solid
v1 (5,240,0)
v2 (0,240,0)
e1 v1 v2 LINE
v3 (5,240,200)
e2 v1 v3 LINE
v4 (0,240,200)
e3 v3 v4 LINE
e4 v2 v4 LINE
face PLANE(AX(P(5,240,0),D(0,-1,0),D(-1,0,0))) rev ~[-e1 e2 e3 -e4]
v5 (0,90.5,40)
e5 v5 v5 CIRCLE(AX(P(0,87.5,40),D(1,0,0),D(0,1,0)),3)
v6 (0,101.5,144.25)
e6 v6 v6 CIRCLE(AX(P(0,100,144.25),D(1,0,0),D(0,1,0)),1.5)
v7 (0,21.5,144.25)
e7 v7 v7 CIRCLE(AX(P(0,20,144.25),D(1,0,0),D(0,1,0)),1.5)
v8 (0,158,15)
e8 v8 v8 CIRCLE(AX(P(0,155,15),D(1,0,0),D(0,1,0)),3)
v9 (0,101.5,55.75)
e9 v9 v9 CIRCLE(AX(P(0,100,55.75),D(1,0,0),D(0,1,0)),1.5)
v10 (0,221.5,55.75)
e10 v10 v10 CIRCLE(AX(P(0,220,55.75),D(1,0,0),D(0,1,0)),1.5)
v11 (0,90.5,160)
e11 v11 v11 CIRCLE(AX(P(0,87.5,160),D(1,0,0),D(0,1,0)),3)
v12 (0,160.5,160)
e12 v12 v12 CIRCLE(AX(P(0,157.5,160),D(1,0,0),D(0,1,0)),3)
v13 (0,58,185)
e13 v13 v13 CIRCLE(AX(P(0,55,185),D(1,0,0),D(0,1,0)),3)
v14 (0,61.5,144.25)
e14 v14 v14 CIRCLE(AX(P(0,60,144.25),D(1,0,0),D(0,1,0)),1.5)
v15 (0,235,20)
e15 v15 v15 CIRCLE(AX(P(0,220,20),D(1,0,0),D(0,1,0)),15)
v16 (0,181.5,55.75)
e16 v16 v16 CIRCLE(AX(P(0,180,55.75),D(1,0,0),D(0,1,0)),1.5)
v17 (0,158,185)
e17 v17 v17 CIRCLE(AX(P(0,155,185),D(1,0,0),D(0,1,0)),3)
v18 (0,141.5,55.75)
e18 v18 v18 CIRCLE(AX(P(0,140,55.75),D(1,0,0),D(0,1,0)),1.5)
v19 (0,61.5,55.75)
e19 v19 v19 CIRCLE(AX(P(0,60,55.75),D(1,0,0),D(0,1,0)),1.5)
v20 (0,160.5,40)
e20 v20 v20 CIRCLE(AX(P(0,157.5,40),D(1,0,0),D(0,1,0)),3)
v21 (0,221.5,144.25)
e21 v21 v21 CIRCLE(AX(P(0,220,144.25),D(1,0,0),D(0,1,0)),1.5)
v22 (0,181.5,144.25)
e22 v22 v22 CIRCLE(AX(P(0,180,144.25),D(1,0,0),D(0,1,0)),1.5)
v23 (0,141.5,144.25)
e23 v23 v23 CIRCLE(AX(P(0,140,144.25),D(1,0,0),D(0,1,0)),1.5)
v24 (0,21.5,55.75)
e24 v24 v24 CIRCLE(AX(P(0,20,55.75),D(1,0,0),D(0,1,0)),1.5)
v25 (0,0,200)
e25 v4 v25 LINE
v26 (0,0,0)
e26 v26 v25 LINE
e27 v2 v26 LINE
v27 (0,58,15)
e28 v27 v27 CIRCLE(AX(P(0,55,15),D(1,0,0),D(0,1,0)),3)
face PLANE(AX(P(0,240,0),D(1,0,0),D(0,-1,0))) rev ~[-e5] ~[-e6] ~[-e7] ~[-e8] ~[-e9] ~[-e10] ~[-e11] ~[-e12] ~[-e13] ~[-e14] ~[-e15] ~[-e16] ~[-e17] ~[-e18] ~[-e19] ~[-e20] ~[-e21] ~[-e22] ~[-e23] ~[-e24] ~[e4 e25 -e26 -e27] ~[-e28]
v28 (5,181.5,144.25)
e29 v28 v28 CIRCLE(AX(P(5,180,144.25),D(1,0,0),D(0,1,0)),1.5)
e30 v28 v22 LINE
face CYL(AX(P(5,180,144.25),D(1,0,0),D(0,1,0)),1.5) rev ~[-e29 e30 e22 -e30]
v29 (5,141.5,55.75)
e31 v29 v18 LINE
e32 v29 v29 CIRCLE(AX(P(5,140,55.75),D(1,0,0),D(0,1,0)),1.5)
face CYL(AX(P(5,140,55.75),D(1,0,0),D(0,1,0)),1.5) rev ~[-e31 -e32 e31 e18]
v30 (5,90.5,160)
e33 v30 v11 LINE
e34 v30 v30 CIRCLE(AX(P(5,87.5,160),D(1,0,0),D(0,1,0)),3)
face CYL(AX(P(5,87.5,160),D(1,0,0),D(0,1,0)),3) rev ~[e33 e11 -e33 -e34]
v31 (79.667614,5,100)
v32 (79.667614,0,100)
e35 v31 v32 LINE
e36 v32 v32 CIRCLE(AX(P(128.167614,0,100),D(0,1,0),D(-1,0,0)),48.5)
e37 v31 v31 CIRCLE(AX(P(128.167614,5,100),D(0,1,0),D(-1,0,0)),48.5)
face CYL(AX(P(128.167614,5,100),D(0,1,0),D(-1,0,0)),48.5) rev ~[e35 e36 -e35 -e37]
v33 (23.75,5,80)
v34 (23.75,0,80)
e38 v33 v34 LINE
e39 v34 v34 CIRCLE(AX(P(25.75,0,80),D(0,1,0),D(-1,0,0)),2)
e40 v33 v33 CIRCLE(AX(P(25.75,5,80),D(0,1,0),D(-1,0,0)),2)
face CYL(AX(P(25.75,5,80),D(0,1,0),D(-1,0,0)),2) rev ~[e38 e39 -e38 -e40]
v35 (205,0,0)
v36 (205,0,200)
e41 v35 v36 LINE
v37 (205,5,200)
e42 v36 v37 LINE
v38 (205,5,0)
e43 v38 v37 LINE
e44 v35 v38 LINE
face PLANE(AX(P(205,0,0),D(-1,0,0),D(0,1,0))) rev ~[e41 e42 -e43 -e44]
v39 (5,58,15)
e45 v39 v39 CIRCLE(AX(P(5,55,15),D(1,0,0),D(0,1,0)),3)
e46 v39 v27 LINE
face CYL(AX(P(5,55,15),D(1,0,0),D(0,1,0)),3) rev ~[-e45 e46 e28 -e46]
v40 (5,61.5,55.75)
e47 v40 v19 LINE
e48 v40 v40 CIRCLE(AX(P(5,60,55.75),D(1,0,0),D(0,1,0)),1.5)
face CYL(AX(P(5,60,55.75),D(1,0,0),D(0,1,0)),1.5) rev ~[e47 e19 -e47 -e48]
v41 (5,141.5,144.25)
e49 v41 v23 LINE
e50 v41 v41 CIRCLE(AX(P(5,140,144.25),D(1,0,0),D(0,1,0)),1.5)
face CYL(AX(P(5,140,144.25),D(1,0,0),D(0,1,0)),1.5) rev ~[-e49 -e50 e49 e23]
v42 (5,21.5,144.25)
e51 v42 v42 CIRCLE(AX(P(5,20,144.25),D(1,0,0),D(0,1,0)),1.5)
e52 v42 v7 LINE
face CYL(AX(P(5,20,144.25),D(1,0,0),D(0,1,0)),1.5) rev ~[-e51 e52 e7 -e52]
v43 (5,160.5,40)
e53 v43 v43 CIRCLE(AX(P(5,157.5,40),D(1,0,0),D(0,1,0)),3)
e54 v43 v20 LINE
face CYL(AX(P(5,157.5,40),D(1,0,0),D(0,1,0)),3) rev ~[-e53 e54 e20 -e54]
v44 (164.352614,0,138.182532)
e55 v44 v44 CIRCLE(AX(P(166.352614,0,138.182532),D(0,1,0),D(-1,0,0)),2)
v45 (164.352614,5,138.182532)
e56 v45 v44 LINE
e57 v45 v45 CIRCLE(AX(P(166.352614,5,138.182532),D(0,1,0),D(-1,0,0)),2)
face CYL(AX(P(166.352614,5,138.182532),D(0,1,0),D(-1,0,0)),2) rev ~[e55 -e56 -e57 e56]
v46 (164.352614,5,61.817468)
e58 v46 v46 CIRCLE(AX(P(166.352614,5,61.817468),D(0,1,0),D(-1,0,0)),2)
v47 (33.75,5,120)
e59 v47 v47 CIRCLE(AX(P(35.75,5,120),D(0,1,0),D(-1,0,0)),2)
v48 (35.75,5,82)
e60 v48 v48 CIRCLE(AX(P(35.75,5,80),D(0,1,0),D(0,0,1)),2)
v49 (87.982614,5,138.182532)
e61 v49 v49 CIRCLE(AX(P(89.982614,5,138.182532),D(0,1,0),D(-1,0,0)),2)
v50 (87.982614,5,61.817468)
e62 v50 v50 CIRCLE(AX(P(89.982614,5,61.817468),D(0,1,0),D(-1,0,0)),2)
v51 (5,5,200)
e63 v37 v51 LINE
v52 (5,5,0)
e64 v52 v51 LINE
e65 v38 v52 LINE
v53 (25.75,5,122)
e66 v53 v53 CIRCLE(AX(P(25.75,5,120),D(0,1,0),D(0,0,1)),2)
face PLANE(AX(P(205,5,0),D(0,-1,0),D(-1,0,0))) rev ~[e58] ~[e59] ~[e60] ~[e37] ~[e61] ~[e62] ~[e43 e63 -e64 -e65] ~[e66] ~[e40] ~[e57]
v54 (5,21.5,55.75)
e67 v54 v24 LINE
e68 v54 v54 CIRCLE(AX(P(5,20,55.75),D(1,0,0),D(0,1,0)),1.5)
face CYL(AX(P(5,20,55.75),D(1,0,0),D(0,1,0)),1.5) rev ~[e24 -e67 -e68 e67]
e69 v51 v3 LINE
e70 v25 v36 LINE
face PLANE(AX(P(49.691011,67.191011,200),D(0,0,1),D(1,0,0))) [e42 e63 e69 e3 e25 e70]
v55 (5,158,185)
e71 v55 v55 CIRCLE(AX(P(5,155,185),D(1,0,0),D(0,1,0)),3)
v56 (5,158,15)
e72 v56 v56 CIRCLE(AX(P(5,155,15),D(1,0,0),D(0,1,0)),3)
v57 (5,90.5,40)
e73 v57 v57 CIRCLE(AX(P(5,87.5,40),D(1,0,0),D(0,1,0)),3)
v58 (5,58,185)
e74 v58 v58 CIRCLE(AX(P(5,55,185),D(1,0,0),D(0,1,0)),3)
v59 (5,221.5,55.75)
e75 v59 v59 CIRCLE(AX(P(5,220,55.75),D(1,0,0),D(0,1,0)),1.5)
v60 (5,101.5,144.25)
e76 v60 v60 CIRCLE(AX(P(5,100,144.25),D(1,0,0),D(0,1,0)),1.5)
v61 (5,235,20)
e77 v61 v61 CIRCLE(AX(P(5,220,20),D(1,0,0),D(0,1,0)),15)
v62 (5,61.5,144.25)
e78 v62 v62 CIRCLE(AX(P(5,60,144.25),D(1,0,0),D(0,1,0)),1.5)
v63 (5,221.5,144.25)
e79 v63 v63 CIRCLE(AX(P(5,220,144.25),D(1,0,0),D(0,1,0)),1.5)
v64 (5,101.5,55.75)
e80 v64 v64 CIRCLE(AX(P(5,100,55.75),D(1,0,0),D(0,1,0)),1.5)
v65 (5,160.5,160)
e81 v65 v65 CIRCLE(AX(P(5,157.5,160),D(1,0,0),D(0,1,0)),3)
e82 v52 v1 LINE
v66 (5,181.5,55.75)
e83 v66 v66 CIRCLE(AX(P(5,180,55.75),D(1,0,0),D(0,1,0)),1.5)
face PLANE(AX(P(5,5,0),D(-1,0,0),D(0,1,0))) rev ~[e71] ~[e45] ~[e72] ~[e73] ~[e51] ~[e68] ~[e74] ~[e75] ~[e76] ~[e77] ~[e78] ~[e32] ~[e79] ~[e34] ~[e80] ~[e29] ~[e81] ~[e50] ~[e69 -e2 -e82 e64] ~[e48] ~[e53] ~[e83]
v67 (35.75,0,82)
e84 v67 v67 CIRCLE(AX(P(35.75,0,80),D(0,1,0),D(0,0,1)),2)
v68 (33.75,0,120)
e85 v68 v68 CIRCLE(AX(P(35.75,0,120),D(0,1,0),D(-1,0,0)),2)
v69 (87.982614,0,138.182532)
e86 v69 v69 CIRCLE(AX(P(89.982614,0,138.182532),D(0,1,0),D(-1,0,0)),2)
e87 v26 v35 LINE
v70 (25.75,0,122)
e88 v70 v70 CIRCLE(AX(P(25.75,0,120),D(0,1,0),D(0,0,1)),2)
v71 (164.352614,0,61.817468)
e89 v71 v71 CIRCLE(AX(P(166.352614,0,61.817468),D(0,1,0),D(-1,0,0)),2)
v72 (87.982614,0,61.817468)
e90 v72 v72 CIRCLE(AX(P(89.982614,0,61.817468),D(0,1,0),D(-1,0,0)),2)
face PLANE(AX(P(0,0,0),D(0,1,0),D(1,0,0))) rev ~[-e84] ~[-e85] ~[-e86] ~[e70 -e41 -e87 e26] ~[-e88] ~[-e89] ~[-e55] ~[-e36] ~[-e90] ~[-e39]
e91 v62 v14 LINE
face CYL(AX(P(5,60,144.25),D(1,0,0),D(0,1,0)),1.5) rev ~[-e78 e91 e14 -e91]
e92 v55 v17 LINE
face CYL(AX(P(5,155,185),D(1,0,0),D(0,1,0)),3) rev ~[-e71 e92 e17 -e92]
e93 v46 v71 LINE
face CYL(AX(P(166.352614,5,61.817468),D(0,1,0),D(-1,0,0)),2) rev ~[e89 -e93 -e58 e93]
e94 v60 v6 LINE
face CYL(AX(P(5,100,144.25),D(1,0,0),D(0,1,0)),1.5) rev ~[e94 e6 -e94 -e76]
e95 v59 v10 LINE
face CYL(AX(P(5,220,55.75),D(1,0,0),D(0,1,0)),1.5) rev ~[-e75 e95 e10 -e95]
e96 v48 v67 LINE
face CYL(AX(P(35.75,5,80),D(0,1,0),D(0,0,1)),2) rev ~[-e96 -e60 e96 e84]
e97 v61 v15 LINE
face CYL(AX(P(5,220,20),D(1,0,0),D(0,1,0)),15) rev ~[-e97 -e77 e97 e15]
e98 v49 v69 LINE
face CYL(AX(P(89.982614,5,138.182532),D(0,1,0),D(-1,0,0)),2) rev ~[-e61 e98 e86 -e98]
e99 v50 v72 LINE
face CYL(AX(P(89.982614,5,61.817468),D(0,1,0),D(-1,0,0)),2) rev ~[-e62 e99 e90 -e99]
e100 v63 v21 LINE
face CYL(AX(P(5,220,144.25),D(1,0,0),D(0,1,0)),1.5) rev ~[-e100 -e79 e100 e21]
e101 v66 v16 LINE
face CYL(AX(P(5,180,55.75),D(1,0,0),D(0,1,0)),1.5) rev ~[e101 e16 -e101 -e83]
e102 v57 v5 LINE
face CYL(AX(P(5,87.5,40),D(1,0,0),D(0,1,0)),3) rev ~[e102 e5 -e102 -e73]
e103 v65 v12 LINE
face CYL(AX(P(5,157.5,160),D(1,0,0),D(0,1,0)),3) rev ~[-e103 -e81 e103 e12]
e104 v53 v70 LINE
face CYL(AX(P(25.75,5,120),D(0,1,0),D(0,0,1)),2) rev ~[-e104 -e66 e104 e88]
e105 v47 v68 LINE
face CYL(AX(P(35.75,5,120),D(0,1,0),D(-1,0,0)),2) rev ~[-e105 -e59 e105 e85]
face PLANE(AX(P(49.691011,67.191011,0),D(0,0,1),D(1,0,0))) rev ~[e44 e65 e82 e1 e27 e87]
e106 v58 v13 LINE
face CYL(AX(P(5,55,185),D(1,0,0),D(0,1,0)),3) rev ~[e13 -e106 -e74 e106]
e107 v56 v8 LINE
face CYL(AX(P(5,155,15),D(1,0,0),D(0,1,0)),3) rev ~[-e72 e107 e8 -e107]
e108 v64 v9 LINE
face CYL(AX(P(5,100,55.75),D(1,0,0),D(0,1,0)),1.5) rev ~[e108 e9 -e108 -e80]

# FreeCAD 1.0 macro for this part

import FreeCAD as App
import Part
import Sketcher
from FreeCAD import Vector
Q = App.Units.Quantity


def add_polygon(sketch, points):
    """Adds a closed chain of lines whose ends are joined by coincident constraints."""
    first, n = sketch.GeometryCount, len(points)
    for a, b in zip(points, points[1:] + points[:1]):
        sketch.addGeometry(Part.LineSegment(App.Vector(*a, 0), App.Vector(*b, 0)), False)
    for i in range(n):
        sketch.addConstraint(Sketcher.Constraint("Coincident", first + i, 2, first + (i + 1) % n, 1))

doc = App.newDocument("Part")
body = doc.addObject("PartDesign::Body", "Body")

sketch1 = body.newObject("Sketcher::SketchObject", "Sketch")
sketch1.AttachmentSupport = (doc.getObject("XY_Plane"), [""])
sketch1.MapMode = "FlatFace"
add_polygon(sketch1, [(0, 240), (0, 0), (205, 0), (205, 5), (5, 5), (5, 240)])
sketch1.addConstraint([
    Sketcher.Constraint("Vertical", 0),
    Sketcher.Constraint("Horizontal", 1),
    Sketcher.Constraint("Vertical", 2),
    Sketcher.Constraint("Horizontal", 3),
    Sketcher.Constraint("Vertical", 4),
    Sketcher.Constraint("Horizontal", 5),
    Sketcher.Constraint("Coincident", 0, 2, -1, 1),
    Sketcher.Constraint("Equal", 5, 2),
    Sketcher.Constraint("DistanceX", 1, 1, 1, 2, Q("205 mm")),
    Sketcher.Constraint("DistanceX", 3, 2, 3, 1, Q("200 mm")),
    Sketcher.Constraint("DistanceY", 0, 2, 0, 1, Q("240 mm")),
])
pad1 = body.newObject("PartDesign::Pad", "Pad")
pad1.Profile = sketch1
pad1.Length = 200

sketch2 = body.newObject("Sketcher::SketchObject", "Sketch001")
sketch2.AttachmentSupport = (doc.getObject("XZ_Plane"), [""])
sketch2.MapMode = "FlatFace"
sketch2.AttachmentOffset = App.Placement(Vector(0, 0, -5), App.Rotation())
sketch2.addGeometry(Part.Circle(Vector(128.167614, 100, 0), Vector(0, 0, 1), 48.5), False)
sketch2.addConstraint([
    Sketcher.Constraint("Diameter", 0, Q("97 mm")),
    Sketcher.Constraint("DistanceY", -1, 1, 0, 3, Q("100 mm")),
    Sketcher.Constraint("DistanceX", -1, 1, 0, 3, Q("128.167614 mm")),
])
pocket1 = body.newObject("PartDesign::Pocket", "Pocket")
pocket1.Profile = sketch2
pocket1.Type = "UpToFirst"
pocket1.Reversed = True

sketch3 = body.newObject("Sketcher::SketchObject", "Sketch002")
sketch3.AttachmentSupport = (doc.getObject("XZ_Plane"), [""])
sketch3.MapMode = "FlatFace"
sketch3.AttachmentOffset = App.Placement(Vector(0, 0, -5), App.Rotation())
sketch3.addGeometry(Part.Circle(Vector(89.982614, 61.817468, 0), Vector(0, 0, 1), 2), False)
sketch3.addConstraint([
    Sketcher.Constraint("Diameter", 0, Q("4 mm")),
    Sketcher.Constraint("DistanceX", -1, 1, 0, 3, Q("89.982614 mm")),
    Sketcher.Constraint("DistanceY", -1, 1, 0, 3, Q("61.817468 mm")),
])
pocket2 = body.newObject("PartDesign::Pocket", "Pocket001")
pocket2.Profile = sketch3
pocket2.Type = "UpToFirst"
pocket2.Reversed = True

sketch4 = body.newObject("Sketcher::SketchObject", "Sketch003")
sketch4.AttachmentSupport = (doc.getObject("XZ_Plane"), [""])
sketch4.MapMode = "FlatFace"
sketch4.AttachmentOffset = App.Placement(Vector(0, 0, -5), App.Rotation())
sketch4.addGeometry(Part.Circle(Vector(166.352614, 61.817468, 0), Vector(0, 0, 1), 2), False)
sketch4.addConstraint([
    Sketcher.Constraint("Diameter", 0, Q("4 mm")),
    Sketcher.Constraint("DistanceX", -1, 1, 0, 3, Q("166.352614 mm")),
    Sketcher.Constraint("DistanceY", -1, 1, 0, 3, Q("61.817468 mm")),
])
pocket3 = body.newObject("PartDesign::Pocket", "Pocket002")
pocket3.Profile = sketch4
pocket3.Type = "UpToFirst"
pocket3.Reversed = True

sketch5 = body.newObject("Sketcher::SketchObject", "Sketch004")
sketch5.AttachmentSupport = (doc.getObject("XZ_Plane"), [""])
sketch5.MapMode = "FlatFace"
sketch5.AttachmentOffset = App.Placement(Vector(0, 0, -5), App.Rotation())
sketch5.addGeometry(Part.Circle(Vector(89.982614, 138.182532, 0), Vector(0, 0, 1), 2), False)
sketch5.addConstraint([
    Sketcher.Constraint("Diameter", 0, Q("4 mm")),
    Sketcher.Constraint("DistanceX", -1, 1, 0, 3, Q("89.982614 mm")),
    Sketcher.Constraint("DistanceY", -1, 1, 0, 3, Q("138.182532 mm")),
])
pocket4 = body.newObject("PartDesign::Pocket", "Pocket003")
pocket4.Profile = sketch5
pocket4.Type = "UpToFirst"
pocket4.Reversed = True

sketch6 = body.newObject("Sketcher::SketchObject", "Sketch005")
sketch6.AttachmentSupport = (doc.getObject("XZ_Plane"), [""])
sketch6.MapMode = "FlatFace"
sketch6.AttachmentOffset = App.Placement(Vector(0, 0, -5), App.Rotation())
sketch6.addGeometry(Part.Circle(Vector(166.352614, 138.182532, 0), Vector(0, 0, 1), 2), False)
sketch6.addConstraint([
    Sketcher.Constraint("Diameter", 0, Q("4 mm")),
    Sketcher.Constraint("DistanceX", -1, 1, 0, 3, Q("166.352614 mm")),
    Sketcher.Constraint("DistanceY", -1, 1, 0, 3, Q("138.182532 mm")),
])
pocket5 = body.newObject("PartDesign::Pocket", "Pocket004")
pocket5.Profile = sketch6
pocket5.Type = "UpToFirst"
pocket5.Reversed = True

sketch7 = body.newObject("Sketcher::SketchObject", "Sketch006")
sketch7.AttachmentSupport = (doc.getObject("XZ_Plane"), [""])
sketch7.MapMode = "FlatFace"
sketch7.AttachmentOffset = App.Placement(Vector(0, 0, -5), App.Rotation())
sketch7.addGeometry(Part.Circle(Vector(25.75, 80, 0), Vector(0, 0, 1), 2), False)
sketch7.addConstraint([
    Sketcher.Constraint("Diameter", 0, Q("4 mm")),
    Sketcher.Constraint("DistanceY", -1, 1, 0, 3, Q("80 mm")),
    Sketcher.Constraint("DistanceX", -1, 1, 0, 3, Q("25.75 mm")),
])
pocket6 = body.newObject("PartDesign::Pocket", "Pocket005")
pocket6.Profile = sketch7
pocket6.Type = "UpToFirst"
pocket6.Reversed = True

sketch8 = body.newObject("Sketcher::SketchObject", "Sketch007")
sketch8.AttachmentSupport = (doc.getObject("XZ_Plane"), [""])
sketch8.MapMode = "FlatFace"
sketch8.AttachmentOffset = App.Placement(Vector(0, 0, -5), App.Rotation())
sketch8.addGeometry(Part.Circle(Vector(25.75, 120, 0), Vector(0, 0, 1), 2), False)
sketch8.addConstraint([
    Sketcher.Constraint("Diameter", 0, Q("4 mm")),
    Sketcher.Constraint("DistanceY", -1, 1, 0, 3, Q("120 mm")),
    Sketcher.Constraint("DistanceX", -1, 1, 0, 3, Q("25.75 mm")),
])
pocket7 = body.newObject("PartDesign::Pocket", "Pocket006")
pocket7.Profile = sketch8
pocket7.Type = "UpToFirst"
pocket7.Reversed = True

sketch9 = body.newObject("Sketcher::SketchObject", "Sketch008")
sketch9.AttachmentSupport = (doc.getObject("XZ_Plane"), [""])
sketch9.MapMode = "FlatFace"
sketch9.AttachmentOffset = App.Placement(Vector(0, 0, -5), App.Rotation())
sketch9.addGeometry(Part.Circle(Vector(35.75, 120, 0), Vector(0, 0, 1), 2), False)
sketch9.addConstraint([
    Sketcher.Constraint("Diameter", 0, Q("4 mm")),
    Sketcher.Constraint("DistanceY", -1, 1, 0, 3, Q("120 mm")),
    Sketcher.Constraint("DistanceX", -1, 1, 0, 3, Q("35.75 mm")),
])
pocket8 = body.newObject("PartDesign::Pocket", "Pocket007")
pocket8.Profile = sketch9
pocket8.Type = "UpToFirst"
pocket8.Reversed = True

sketch10 = body.newObject("Sketcher::SketchObject", "Sketch009")
sketch10.AttachmentSupport = (doc.getObject("XZ_Plane"), [""])
sketch10.MapMode = "FlatFace"
sketch10.AttachmentOffset = App.Placement(Vector(0, 0, -5), App.Rotation())
sketch10.addGeometry(Part.Circle(Vector(35.75, 80, 0), Vector(0, 0, 1), 2), False)
sketch10.addConstraint([
    Sketcher.Constraint("Diameter", 0, Q("4 mm")),
    Sketcher.Constraint("DistanceY", -1, 1, 0, 3, Q("80 mm")),
    Sketcher.Constraint("DistanceX", -1, 1, 0, 3, Q("35.75 mm")),
])
pocket9 = body.newObject("PartDesign::Pocket", "Pocket008")
pocket9.Profile = sketch10
pocket9.Type = "UpToFirst"
pocket9.Reversed = True

sketch11 = body.newObject("Sketcher::SketchObject", "Sketch010")
sketch11.AttachmentSupport = (doc.getObject("YZ_Plane"), [""])
sketch11.MapMode = "FlatFace"
sketch11.AttachmentOffset = App.Placement(Vector(0, 0, 5), App.Rotation())
sketch11.addGeometry(Part.Circle(Vector(220, 20, 0), Vector(0, 0, 1), 15), False)
sketch11.addConstraint([
    Sketcher.Constraint("Diameter", 0, Q("30 mm")),
    Sketcher.Constraint("DistanceX", -1, 1, 0, 3, Q("220 mm")),
    Sketcher.Constraint("DistanceY", -1, 1, 0, 3, Q("20 mm")),
])
pocket10 = body.newObject("PartDesign::Pocket", "Pocket009")
pocket10.Profile = sketch11
pocket10.Length = 10

sketch12 = body.newObject("Sketcher::SketchObject", "Sketch011")
sketch12.AttachmentSupport = (doc.getObject("YZ_Plane"), [""])
sketch12.MapMode = "FlatFace"
sketch12.AttachmentOffset = App.Placement(Vector(0, 0, 5), App.Rotation())
sketch12.addGeometry(Part.Circle(Vector(55, 185, 0), Vector(0, 0, 1), 3), False)
sketch12.addConstraint([
    Sketcher.Constraint("Diameter", 0, Q("6 mm")),
    Sketcher.Constraint("DistanceX", -1, 1, 0, 3, Q("55 mm")),
    Sketcher.Constraint("DistanceY", -1, 1, 0, 3, Q("185 mm")),
])
pocket11 = body.newObject("PartDesign::Pocket", "Pocket010")
pocket11.Profile = sketch12
pocket11.Type = "UpToFirst"

sketch13 = body.newObject("Sketcher::SketchObject", "Sketch012")
sketch13.AttachmentSupport = (doc.getObject("YZ_Plane"), [""])
sketch13.MapMode = "FlatFace"
sketch13.AttachmentOffset = App.Placement(Vector(0, 0, 5), App.Rotation())
sketch13.addGeometry(Part.Circle(Vector(155, 185, 0), Vector(0, 0, 1), 3), False)
sketch13.addConstraint([
    Sketcher.Constraint("Diameter", 0, Q("6 mm")),
    Sketcher.Constraint("DistanceX", -1, 1, 0, 3, Q("155 mm")),
    Sketcher.Constraint("DistanceY", -1, 1, 0, 3, Q("185 mm")),
])
pocket12 = body.newObject("PartDesign::Pocket", "Pocket011")
pocket12.Profile = sketch13
pocket12.Type = "UpToFirst"

sketch14 = body.newObject("Sketcher::SketchObject", "Sketch013")
sketch14.AttachmentSupport = (doc.getObject("YZ_Plane"), [""])
sketch14.MapMode = "FlatFace"
sketch14.AttachmentOffset = App.Placement(Vector(0, 0, 5), App.Rotation())
sketch14.addGeometry(Part.Circle(Vector(55, 15, 0), Vector(0, 0, 1), 3), False)
sketch14.addConstraint([
    Sketcher.Constraint("Diameter", 0, Q("6 mm")),
    Sketcher.Constraint("DistanceX", -1, 1, 0, 3, Q("55 mm")),
    Sketcher.Constraint("DistanceY", -1, 1, 0, 3, Q("15 mm")),
])
pocket13 = body.newObject("PartDesign::Pocket", "Pocket012")
pocket13.Profile = sketch14
pocket13.Type = "UpToFirst"

sketch15 = body.newObject("Sketcher::SketchObject", "Sketch014")
sketch15.AttachmentSupport = (doc.getObject("YZ_Plane"), [""])
sketch15.MapMode = "FlatFace"
sketch15.AttachmentOffset = App.Placement(Vector(0, 0, 5), App.Rotation())
sketch15.addGeometry(Part.Circle(Vector(155, 15, 0), Vector(0, 0, 1), 3), False)
sketch15.addConstraint([
    Sketcher.Constraint("Diameter", 0, Q("6 mm")),
    Sketcher.Constraint("DistanceX", -1, 1, 0, 3, Q("155 mm")),
    Sketcher.Constraint("DistanceY", -1, 1, 0, 3, Q("15 mm")),
])
pocket14 = body.newObject("PartDesign::Pocket", "Pocket013")
pocket14.Profile = sketch15
pocket14.Type = "UpToFirst"

sketch16 = body.newObject("Sketcher::SketchObject", "Sketch015")
sketch16.AttachmentSupport = (doc.getObject("YZ_Plane"), [""])
sketch16.MapMode = "FlatFace"
sketch16.AttachmentOffset = App.Placement(Vector(0, 0, 5), App.Rotation())
sketch16.addGeometry(Part.Circle(Vector(220, 144.25, 0), Vector(0, 0, 1), 1.5), False)
sketch16.addConstraint([
    Sketcher.Constraint("Diameter", 0, Q("3 mm")),
    Sketcher.Constraint("DistanceX", -1, 1, 0, 3, Q("220 mm")),
    Sketcher.Constraint("DistanceY", -1, 1, 0, 3, Q("144.25 mm")),
])
pocket15 = body.newObject("PartDesign::Pocket", "Pocket014")
pocket15.Profile = sketch16
pocket15.Type = "UpToFirst"

sketch17 = body.newObject("Sketcher::SketchObject", "Sketch016")
sketch17.AttachmentSupport = (doc.getObject("YZ_Plane"), [""])
sketch17.MapMode = "FlatFace"
sketch17.AttachmentOffset = App.Placement(Vector(0, 0, 5), App.Rotation())
sketch17.addGeometry(Part.Circle(Vector(220, 55.75, 0), Vector(0, 0, 1), 1.5), False)
sketch17.addConstraint([
    Sketcher.Constraint("Diameter", 0, Q("3 mm")),
    Sketcher.Constraint("DistanceX", -1, 1, 0, 3, Q("220 mm")),
    Sketcher.Constraint("DistanceY", -1, 1, 0, 3, Q("55.75 mm")),
])
pocket16 = body.newObject("PartDesign::Pocket", "Pocket015")
pocket16.Profile = sketch17
pocket16.Type = "UpToFirst"

sketch18 = body.newObject("Sketcher::SketchObject", "Sketch017")
sketch18.AttachmentSupport = (doc.getObject("YZ_Plane"), [""])
sketch18.MapMode = "FlatFace"
sketch18.AttachmentOffset = App.Placement(Vector(0, 0, 5), App.Rotation())
sketch18.addGeometry(Part.Circle(Vector(180, 144.25, 0), Vector(0, 0, 1), 1.5), False)
sketch18.addConstraint([
    Sketcher.Constraint("Diameter", 0, Q("3 mm")),
    Sketcher.Constraint("DistanceX", -1, 1, 0, 3, Q("180 mm")),
    Sketcher.Constraint("DistanceY", -1, 1, 0, 3, Q("144.25 mm")),
])
pocket17 = body.newObject("PartDesign::Pocket", "Pocket016")
pocket17.Profile = sketch18
pocket17.Type = "UpToFirst"

sketch19 = body.newObject("Sketcher::SketchObject", "Sketch018")
sketch19.AttachmentSupport = (doc.getObject("YZ_Plane"), [""])
sketch19.MapMode = "FlatFace"
sketch19.AttachmentOffset = App.Placement(Vector(0, 0, 5), App.Rotation())
sketch19.addGeometry(Part.Circle(Vector(180, 55.75, 0), Vector(0, 0, 1), 1.5), False)
sketch19.addConstraint([
    Sketcher.Constraint("Diameter", 0, Q("3 mm")),
    Sketcher.Constraint("DistanceX", -1, 1, 0, 3, Q("180 mm")),
    Sketcher.Constraint("DistanceY", -1, 1, 0, 3, Q("55.75 mm")),
])
pocket18 = body.newObject("PartDesign::Pocket", "Pocket017")
pocket18.Profile = sketch19
pocket18.Type = "UpToFirst"

sketch20 = body.newObject("Sketcher::SketchObject", "Sketch019")
sketch20.AttachmentSupport = (doc.getObject("YZ_Plane"), [""])
sketch20.MapMode = "FlatFace"
sketch20.AttachmentOffset = App.Placement(Vector(0, 0, 5), App.Rotation())
sketch20.addGeometry(Part.Circle(Vector(140, 144.25, 0), Vector(0, 0, 1), 1.5), False)
sketch20.addConstraint([
    Sketcher.Constraint("Diameter", 0, Q("3 mm")),
    Sketcher.Constraint("DistanceX", -1, 1, 0, 3, Q("140 mm")),
    Sketcher.Constraint("DistanceY", -1, 1, 0, 3, Q("144.25 mm")),
])
pocket19 = body.newObject("PartDesign::Pocket", "Pocket018")
pocket19.Profile = sketch20
pocket19.Type = "UpToFirst"

sketch21 = body.newObject("Sketcher::SketchObject", "Sketch020")
sketch21.AttachmentSupport = (doc.getObject("YZ_Plane"), [""])
sketch21.MapMode = "FlatFace"
sketch21.AttachmentOffset = App.Placement(Vector(0, 0, 5), App.Rotation())
sketch21.addGeometry(Part.Circle(Vector(140, 55.75, 0), Vector(0, 0, 1), 1.5), False)
sketch21.addConstraint([
    Sketcher.Constraint("Diameter", 0, Q("3 mm")),
    Sketcher.Constraint("DistanceX", -1, 1, 0, 3, Q("140 mm")),
    Sketcher.Constraint("DistanceY", -1, 1, 0, 3, Q("55.75 mm")),
])
pocket20 = body.newObject("PartDesign::Pocket", "Pocket019")
pocket20.Profile = sketch21
pocket20.Type = "UpToFirst"

sketch22 = body.newObject("Sketcher::SketchObject", "Sketch021")
sketch22.AttachmentSupport = (doc.getObject("YZ_Plane"), [""])
sketch22.MapMode = "FlatFace"
sketch22.AttachmentOffset = App.Placement(Vector(0, 0, 5), App.Rotation())
sketch22.addGeometry(Part.Circle(Vector(100, 144.25, 0), Vector(0, 0, 1), 1.5), False)
sketch22.addConstraint([
    Sketcher.Constraint("Diameter", 0, Q("3 mm")),
    Sketcher.Constraint("DistanceX", -1, 1, 0, 3, Q("100 mm")),
    Sketcher.Constraint("DistanceY", -1, 1, 0, 3, Q("144.25 mm")),
])
pocket21 = body.newObject("PartDesign::Pocket", "Pocket020")
pocket21.Profile = sketch22
pocket21.Type = "UpToFirst"

sketch23 = body.newObject("Sketcher::SketchObject", "Sketch022")
sketch23.AttachmentSupport = (doc.getObject("YZ_Plane"), [""])
sketch23.MapMode = "FlatFace"
sketch23.AttachmentOffset = App.Placement(Vector(0, 0, 5), App.Rotation())
sketch23.addGeometry(Part.Circle(Vector(100, 55.75, 0), Vector(0, 0, 1), 1.5), False)
sketch23.addConstraint([
    Sketcher.Constraint("Diameter", 0, Q("3 mm")),
    Sketcher.Constraint("DistanceX", -1, 1, 0, 3, Q("100 mm")),
    Sketcher.Constraint("DistanceY", -1, 1, 0, 3, Q("55.75 mm")),
])
pocket22 = body.newObject("PartDesign::Pocket", "Pocket021")
pocket22.Profile = sketch23
pocket22.Type = "UpToFirst"

sketch24 = body.newObject("Sketcher::SketchObject", "Sketch023")
sketch24.AttachmentSupport = (doc.getObject("YZ_Plane"), [""])
sketch24.MapMode = "FlatFace"
sketch24.AttachmentOffset = App.Placement(Vector(0, 0, 5), App.Rotation())
sketch24.addGeometry(Part.Circle(Vector(60, 144.25, 0), Vector(0, 0, 1), 1.5), False)
sketch24.addConstraint([
    Sketcher.Constraint("Diameter", 0, Q("3 mm")),
    Sketcher.Constraint("DistanceX", -1, 1, 0, 3, Q("60 mm")),
    Sketcher.Constraint("DistanceY", -1, 1, 0, 3, Q("144.25 mm")),
])
pocket23 = body.newObject("PartDesign::Pocket", "Pocket022")
pocket23.Profile = sketch24
pocket23.Type = "UpToFirst"

sketch25 = body.newObject("Sketcher::SketchObject", "Sketch024")
sketch25.AttachmentSupport = (doc.getObject("YZ_Plane"), [""])
sketch25.MapMode = "FlatFace"
sketch25.AttachmentOffset = App.Placement(Vector(0, 0, 5), App.Rotation())
sketch25.addGeometry(Part.Circle(Vector(60, 55.75, 0), Vector(0, 0, 1), 1.5), False)
sketch25.addConstraint([
    Sketcher.Constraint("Diameter", 0, Q("3 mm")),
    Sketcher.Constraint("DistanceX", -1, 1, 0, 3, Q("60 mm")),
    Sketcher.Constraint("DistanceY", -1, 1, 0, 3, Q("55.75 mm")),
])
pocket24 = body.newObject("PartDesign::Pocket", "Pocket023")
pocket24.Profile = sketch25
pocket24.Type = "UpToFirst"

sketch26 = body.newObject("Sketcher::SketchObject", "Sketch025")
sketch26.AttachmentSupport = (doc.getObject("YZ_Plane"), [""])
sketch26.MapMode = "FlatFace"
sketch26.AttachmentOffset = App.Placement(Vector(0, 0, 5), App.Rotation())
sketch26.addGeometry(Part.Circle(Vector(20, 144.25, 0), Vector(0, 0, 1), 1.5), False)
sketch26.addConstraint([
    Sketcher.Constraint("Diameter", 0, Q("3 mm")),
    Sketcher.Constraint("DistanceX", -1, 1, 0, 3, Q("20 mm")),
    Sketcher.Constraint("DistanceY", -1, 1, 0, 3, Q("144.25 mm")),
])
pocket25 = body.newObject("PartDesign::Pocket", "Pocket024")
pocket25.Profile = sketch26
pocket25.Type = "UpToFirst"

sketch27 = body.newObject("Sketcher::SketchObject", "Sketch026")
sketch27.AttachmentSupport = (doc.getObject("YZ_Plane"), [""])
sketch27.MapMode = "FlatFace"
sketch27.AttachmentOffset = App.Placement(Vector(0, 0, 5), App.Rotation())
sketch27.addGeometry(Part.Circle(Vector(20, 55.75, 0), Vector(0, 0, 1), 1.5), False)
sketch27.addConstraint([
    Sketcher.Constraint("Diameter", 0, Q("3 mm")),
    Sketcher.Constraint("DistanceX", -1, 1, 0, 3, Q("20 mm")),
    Sketcher.Constraint("DistanceY", -1, 1, 0, 3, Q("55.75 mm")),
])
pocket26 = body.newObject("PartDesign::Pocket", "Pocket025")
pocket26.Profile = sketch27
pocket26.Type = "UpToFirst"

sketch28 = body.newObject("Sketcher::SketchObject", "Sketch027")
sketch28.AttachmentSupport = (doc.getObject("YZ_Plane"), [""])
sketch28.MapMode = "FlatFace"
sketch28.AttachmentOffset = App.Placement(Vector(0, 0, 5), App.Rotation())
sketch28.addGeometry(Part.Circle(Vector(157.5, 160, 0), Vector(0, 0, 1), 3), False)
sketch28.addConstraint([
    Sketcher.Constraint("Diameter", 0, Q("6 mm")),
    Sketcher.Constraint("DistanceY", -1, 1, 0, 3, Q("160 mm")),
    Sketcher.Constraint("DistanceX", -1, 1, 0, 3, Q("157.5 mm")),
])
pocket27 = body.newObject("PartDesign::Pocket", "Pocket026")
pocket27.Profile = sketch28
pocket27.Type = "UpToFirst"

sketch29 = body.newObject("Sketcher::SketchObject", "Sketch028")
sketch29.AttachmentSupport = (doc.getObject("YZ_Plane"), [""])
sketch29.MapMode = "FlatFace"
sketch29.AttachmentOffset = App.Placement(Vector(0, 0, 5), App.Rotation())
sketch29.addGeometry(Part.Circle(Vector(157.5, 40, 0), Vector(0, 0, 1), 3), False)
sketch29.addConstraint([
    Sketcher.Constraint("Diameter", 0, Q("6 mm")),
    Sketcher.Constraint("DistanceY", -1, 1, 0, 3, Q("40 mm")),
    Sketcher.Constraint("DistanceX", -1, 1, 0, 3, Q("157.5 mm")),
])
pocket28 = body.newObject("PartDesign::Pocket", "Pocket027")
pocket28.Profile = sketch29
pocket28.Type = "UpToFirst"

sketch30 = body.newObject("Sketcher::SketchObject", "Sketch029")
sketch30.AttachmentSupport = (doc.getObject("YZ_Plane"), [""])
sketch30.MapMode = "FlatFace"
sketch30.AttachmentOffset = App.Placement(Vector(0, 0, 5), App.Rotation())
sketch30.addGeometry(Part.Circle(Vector(87.5, 40, 0), Vector(0, 0, 1), 3), False)
sketch30.addConstraint([
    Sketcher.Constraint("Diameter", 0, Q("6 mm")),
    Sketcher.Constraint("DistanceY", -1, 1, 0, 3, Q("40 mm")),
    Sketcher.Constraint("DistanceX", -1, 1, 0, 3, Q("87.5 mm")),
])
pocket29 = body.newObject("PartDesign::Pocket", "Pocket028")
pocket29.Profile = sketch30
pocket29.Type = "UpToFirst"

sketch31 = body.newObject("Sketcher::SketchObject", "Sketch030")
sketch31.AttachmentSupport = (doc.getObject("YZ_Plane"), [""])
sketch31.MapMode = "FlatFace"
sketch31.AttachmentOffset = App.Placement(Vector(0, 0, 5), App.Rotation())
sketch31.addGeometry(Part.Circle(Vector(87.5, 160, 0), Vector(0, 0, 1), 3), False)
sketch31.addConstraint([
    Sketcher.Constraint("Diameter", 0, Q("6 mm")),
    Sketcher.Constraint("DistanceY", -1, 1, 0, 3, Q("160 mm")),
    Sketcher.Constraint("DistanceX", -1, 1, 0, 3, Q("87.5 mm")),
])
pocket30 = body.newObject("PartDesign::Pocket", "Pocket029")
pocket30.Profile = sketch31
pocket30.Type = "UpToFirst"

doc.recompute()
